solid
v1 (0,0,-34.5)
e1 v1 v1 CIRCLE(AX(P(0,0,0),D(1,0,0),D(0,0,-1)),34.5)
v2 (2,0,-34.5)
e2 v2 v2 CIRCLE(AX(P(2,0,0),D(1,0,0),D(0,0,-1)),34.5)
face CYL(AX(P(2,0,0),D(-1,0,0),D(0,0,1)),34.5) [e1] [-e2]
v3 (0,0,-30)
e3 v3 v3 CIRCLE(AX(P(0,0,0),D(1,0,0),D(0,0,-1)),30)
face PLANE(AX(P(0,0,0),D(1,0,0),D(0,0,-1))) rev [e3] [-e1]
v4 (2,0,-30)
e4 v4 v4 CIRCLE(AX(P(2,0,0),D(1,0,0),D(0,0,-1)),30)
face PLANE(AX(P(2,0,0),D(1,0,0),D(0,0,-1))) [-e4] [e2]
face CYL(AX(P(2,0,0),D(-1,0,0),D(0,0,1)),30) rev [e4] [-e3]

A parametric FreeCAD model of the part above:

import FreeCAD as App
import Part
import Sketcher
from FreeCAD import Vector

doc = App.newDocument("Part")
body = doc.addObject("PartDesign::Body", "Body")

sketch1 = body.newObject("Sketcher::SketchObject", "Sketch")
sketch1.AttachmentSupport = (doc.getObject("YZ_Plane"), [""])
sketch1.MapMode = "FlatFace"
sketch1.addGeometry([
    Part.Circle(Vector(0, 0, 0), Vector(0, 0, 1), 34),
    Part.Circle(Vector(0, 0, 0), Vector(0, 0, 1), 30),
], False)
sketch1.addConstraint([
    Sketcher.Constraint("Coincident", 0, 3, -1, 1),
    Sketcher.Constraint("Coincident", 1, 3, -1, 1),
    Sketcher.Constraint("Diameter", 0, 69.0),
    Sketcher.Constraint("Diameter", 1, 60.0),
])
pad1 = body.newObject("PartDesign::Pad", "Pad")
pad1.Profile = sketch1
pad1.Length = 2

doc.recompute()
